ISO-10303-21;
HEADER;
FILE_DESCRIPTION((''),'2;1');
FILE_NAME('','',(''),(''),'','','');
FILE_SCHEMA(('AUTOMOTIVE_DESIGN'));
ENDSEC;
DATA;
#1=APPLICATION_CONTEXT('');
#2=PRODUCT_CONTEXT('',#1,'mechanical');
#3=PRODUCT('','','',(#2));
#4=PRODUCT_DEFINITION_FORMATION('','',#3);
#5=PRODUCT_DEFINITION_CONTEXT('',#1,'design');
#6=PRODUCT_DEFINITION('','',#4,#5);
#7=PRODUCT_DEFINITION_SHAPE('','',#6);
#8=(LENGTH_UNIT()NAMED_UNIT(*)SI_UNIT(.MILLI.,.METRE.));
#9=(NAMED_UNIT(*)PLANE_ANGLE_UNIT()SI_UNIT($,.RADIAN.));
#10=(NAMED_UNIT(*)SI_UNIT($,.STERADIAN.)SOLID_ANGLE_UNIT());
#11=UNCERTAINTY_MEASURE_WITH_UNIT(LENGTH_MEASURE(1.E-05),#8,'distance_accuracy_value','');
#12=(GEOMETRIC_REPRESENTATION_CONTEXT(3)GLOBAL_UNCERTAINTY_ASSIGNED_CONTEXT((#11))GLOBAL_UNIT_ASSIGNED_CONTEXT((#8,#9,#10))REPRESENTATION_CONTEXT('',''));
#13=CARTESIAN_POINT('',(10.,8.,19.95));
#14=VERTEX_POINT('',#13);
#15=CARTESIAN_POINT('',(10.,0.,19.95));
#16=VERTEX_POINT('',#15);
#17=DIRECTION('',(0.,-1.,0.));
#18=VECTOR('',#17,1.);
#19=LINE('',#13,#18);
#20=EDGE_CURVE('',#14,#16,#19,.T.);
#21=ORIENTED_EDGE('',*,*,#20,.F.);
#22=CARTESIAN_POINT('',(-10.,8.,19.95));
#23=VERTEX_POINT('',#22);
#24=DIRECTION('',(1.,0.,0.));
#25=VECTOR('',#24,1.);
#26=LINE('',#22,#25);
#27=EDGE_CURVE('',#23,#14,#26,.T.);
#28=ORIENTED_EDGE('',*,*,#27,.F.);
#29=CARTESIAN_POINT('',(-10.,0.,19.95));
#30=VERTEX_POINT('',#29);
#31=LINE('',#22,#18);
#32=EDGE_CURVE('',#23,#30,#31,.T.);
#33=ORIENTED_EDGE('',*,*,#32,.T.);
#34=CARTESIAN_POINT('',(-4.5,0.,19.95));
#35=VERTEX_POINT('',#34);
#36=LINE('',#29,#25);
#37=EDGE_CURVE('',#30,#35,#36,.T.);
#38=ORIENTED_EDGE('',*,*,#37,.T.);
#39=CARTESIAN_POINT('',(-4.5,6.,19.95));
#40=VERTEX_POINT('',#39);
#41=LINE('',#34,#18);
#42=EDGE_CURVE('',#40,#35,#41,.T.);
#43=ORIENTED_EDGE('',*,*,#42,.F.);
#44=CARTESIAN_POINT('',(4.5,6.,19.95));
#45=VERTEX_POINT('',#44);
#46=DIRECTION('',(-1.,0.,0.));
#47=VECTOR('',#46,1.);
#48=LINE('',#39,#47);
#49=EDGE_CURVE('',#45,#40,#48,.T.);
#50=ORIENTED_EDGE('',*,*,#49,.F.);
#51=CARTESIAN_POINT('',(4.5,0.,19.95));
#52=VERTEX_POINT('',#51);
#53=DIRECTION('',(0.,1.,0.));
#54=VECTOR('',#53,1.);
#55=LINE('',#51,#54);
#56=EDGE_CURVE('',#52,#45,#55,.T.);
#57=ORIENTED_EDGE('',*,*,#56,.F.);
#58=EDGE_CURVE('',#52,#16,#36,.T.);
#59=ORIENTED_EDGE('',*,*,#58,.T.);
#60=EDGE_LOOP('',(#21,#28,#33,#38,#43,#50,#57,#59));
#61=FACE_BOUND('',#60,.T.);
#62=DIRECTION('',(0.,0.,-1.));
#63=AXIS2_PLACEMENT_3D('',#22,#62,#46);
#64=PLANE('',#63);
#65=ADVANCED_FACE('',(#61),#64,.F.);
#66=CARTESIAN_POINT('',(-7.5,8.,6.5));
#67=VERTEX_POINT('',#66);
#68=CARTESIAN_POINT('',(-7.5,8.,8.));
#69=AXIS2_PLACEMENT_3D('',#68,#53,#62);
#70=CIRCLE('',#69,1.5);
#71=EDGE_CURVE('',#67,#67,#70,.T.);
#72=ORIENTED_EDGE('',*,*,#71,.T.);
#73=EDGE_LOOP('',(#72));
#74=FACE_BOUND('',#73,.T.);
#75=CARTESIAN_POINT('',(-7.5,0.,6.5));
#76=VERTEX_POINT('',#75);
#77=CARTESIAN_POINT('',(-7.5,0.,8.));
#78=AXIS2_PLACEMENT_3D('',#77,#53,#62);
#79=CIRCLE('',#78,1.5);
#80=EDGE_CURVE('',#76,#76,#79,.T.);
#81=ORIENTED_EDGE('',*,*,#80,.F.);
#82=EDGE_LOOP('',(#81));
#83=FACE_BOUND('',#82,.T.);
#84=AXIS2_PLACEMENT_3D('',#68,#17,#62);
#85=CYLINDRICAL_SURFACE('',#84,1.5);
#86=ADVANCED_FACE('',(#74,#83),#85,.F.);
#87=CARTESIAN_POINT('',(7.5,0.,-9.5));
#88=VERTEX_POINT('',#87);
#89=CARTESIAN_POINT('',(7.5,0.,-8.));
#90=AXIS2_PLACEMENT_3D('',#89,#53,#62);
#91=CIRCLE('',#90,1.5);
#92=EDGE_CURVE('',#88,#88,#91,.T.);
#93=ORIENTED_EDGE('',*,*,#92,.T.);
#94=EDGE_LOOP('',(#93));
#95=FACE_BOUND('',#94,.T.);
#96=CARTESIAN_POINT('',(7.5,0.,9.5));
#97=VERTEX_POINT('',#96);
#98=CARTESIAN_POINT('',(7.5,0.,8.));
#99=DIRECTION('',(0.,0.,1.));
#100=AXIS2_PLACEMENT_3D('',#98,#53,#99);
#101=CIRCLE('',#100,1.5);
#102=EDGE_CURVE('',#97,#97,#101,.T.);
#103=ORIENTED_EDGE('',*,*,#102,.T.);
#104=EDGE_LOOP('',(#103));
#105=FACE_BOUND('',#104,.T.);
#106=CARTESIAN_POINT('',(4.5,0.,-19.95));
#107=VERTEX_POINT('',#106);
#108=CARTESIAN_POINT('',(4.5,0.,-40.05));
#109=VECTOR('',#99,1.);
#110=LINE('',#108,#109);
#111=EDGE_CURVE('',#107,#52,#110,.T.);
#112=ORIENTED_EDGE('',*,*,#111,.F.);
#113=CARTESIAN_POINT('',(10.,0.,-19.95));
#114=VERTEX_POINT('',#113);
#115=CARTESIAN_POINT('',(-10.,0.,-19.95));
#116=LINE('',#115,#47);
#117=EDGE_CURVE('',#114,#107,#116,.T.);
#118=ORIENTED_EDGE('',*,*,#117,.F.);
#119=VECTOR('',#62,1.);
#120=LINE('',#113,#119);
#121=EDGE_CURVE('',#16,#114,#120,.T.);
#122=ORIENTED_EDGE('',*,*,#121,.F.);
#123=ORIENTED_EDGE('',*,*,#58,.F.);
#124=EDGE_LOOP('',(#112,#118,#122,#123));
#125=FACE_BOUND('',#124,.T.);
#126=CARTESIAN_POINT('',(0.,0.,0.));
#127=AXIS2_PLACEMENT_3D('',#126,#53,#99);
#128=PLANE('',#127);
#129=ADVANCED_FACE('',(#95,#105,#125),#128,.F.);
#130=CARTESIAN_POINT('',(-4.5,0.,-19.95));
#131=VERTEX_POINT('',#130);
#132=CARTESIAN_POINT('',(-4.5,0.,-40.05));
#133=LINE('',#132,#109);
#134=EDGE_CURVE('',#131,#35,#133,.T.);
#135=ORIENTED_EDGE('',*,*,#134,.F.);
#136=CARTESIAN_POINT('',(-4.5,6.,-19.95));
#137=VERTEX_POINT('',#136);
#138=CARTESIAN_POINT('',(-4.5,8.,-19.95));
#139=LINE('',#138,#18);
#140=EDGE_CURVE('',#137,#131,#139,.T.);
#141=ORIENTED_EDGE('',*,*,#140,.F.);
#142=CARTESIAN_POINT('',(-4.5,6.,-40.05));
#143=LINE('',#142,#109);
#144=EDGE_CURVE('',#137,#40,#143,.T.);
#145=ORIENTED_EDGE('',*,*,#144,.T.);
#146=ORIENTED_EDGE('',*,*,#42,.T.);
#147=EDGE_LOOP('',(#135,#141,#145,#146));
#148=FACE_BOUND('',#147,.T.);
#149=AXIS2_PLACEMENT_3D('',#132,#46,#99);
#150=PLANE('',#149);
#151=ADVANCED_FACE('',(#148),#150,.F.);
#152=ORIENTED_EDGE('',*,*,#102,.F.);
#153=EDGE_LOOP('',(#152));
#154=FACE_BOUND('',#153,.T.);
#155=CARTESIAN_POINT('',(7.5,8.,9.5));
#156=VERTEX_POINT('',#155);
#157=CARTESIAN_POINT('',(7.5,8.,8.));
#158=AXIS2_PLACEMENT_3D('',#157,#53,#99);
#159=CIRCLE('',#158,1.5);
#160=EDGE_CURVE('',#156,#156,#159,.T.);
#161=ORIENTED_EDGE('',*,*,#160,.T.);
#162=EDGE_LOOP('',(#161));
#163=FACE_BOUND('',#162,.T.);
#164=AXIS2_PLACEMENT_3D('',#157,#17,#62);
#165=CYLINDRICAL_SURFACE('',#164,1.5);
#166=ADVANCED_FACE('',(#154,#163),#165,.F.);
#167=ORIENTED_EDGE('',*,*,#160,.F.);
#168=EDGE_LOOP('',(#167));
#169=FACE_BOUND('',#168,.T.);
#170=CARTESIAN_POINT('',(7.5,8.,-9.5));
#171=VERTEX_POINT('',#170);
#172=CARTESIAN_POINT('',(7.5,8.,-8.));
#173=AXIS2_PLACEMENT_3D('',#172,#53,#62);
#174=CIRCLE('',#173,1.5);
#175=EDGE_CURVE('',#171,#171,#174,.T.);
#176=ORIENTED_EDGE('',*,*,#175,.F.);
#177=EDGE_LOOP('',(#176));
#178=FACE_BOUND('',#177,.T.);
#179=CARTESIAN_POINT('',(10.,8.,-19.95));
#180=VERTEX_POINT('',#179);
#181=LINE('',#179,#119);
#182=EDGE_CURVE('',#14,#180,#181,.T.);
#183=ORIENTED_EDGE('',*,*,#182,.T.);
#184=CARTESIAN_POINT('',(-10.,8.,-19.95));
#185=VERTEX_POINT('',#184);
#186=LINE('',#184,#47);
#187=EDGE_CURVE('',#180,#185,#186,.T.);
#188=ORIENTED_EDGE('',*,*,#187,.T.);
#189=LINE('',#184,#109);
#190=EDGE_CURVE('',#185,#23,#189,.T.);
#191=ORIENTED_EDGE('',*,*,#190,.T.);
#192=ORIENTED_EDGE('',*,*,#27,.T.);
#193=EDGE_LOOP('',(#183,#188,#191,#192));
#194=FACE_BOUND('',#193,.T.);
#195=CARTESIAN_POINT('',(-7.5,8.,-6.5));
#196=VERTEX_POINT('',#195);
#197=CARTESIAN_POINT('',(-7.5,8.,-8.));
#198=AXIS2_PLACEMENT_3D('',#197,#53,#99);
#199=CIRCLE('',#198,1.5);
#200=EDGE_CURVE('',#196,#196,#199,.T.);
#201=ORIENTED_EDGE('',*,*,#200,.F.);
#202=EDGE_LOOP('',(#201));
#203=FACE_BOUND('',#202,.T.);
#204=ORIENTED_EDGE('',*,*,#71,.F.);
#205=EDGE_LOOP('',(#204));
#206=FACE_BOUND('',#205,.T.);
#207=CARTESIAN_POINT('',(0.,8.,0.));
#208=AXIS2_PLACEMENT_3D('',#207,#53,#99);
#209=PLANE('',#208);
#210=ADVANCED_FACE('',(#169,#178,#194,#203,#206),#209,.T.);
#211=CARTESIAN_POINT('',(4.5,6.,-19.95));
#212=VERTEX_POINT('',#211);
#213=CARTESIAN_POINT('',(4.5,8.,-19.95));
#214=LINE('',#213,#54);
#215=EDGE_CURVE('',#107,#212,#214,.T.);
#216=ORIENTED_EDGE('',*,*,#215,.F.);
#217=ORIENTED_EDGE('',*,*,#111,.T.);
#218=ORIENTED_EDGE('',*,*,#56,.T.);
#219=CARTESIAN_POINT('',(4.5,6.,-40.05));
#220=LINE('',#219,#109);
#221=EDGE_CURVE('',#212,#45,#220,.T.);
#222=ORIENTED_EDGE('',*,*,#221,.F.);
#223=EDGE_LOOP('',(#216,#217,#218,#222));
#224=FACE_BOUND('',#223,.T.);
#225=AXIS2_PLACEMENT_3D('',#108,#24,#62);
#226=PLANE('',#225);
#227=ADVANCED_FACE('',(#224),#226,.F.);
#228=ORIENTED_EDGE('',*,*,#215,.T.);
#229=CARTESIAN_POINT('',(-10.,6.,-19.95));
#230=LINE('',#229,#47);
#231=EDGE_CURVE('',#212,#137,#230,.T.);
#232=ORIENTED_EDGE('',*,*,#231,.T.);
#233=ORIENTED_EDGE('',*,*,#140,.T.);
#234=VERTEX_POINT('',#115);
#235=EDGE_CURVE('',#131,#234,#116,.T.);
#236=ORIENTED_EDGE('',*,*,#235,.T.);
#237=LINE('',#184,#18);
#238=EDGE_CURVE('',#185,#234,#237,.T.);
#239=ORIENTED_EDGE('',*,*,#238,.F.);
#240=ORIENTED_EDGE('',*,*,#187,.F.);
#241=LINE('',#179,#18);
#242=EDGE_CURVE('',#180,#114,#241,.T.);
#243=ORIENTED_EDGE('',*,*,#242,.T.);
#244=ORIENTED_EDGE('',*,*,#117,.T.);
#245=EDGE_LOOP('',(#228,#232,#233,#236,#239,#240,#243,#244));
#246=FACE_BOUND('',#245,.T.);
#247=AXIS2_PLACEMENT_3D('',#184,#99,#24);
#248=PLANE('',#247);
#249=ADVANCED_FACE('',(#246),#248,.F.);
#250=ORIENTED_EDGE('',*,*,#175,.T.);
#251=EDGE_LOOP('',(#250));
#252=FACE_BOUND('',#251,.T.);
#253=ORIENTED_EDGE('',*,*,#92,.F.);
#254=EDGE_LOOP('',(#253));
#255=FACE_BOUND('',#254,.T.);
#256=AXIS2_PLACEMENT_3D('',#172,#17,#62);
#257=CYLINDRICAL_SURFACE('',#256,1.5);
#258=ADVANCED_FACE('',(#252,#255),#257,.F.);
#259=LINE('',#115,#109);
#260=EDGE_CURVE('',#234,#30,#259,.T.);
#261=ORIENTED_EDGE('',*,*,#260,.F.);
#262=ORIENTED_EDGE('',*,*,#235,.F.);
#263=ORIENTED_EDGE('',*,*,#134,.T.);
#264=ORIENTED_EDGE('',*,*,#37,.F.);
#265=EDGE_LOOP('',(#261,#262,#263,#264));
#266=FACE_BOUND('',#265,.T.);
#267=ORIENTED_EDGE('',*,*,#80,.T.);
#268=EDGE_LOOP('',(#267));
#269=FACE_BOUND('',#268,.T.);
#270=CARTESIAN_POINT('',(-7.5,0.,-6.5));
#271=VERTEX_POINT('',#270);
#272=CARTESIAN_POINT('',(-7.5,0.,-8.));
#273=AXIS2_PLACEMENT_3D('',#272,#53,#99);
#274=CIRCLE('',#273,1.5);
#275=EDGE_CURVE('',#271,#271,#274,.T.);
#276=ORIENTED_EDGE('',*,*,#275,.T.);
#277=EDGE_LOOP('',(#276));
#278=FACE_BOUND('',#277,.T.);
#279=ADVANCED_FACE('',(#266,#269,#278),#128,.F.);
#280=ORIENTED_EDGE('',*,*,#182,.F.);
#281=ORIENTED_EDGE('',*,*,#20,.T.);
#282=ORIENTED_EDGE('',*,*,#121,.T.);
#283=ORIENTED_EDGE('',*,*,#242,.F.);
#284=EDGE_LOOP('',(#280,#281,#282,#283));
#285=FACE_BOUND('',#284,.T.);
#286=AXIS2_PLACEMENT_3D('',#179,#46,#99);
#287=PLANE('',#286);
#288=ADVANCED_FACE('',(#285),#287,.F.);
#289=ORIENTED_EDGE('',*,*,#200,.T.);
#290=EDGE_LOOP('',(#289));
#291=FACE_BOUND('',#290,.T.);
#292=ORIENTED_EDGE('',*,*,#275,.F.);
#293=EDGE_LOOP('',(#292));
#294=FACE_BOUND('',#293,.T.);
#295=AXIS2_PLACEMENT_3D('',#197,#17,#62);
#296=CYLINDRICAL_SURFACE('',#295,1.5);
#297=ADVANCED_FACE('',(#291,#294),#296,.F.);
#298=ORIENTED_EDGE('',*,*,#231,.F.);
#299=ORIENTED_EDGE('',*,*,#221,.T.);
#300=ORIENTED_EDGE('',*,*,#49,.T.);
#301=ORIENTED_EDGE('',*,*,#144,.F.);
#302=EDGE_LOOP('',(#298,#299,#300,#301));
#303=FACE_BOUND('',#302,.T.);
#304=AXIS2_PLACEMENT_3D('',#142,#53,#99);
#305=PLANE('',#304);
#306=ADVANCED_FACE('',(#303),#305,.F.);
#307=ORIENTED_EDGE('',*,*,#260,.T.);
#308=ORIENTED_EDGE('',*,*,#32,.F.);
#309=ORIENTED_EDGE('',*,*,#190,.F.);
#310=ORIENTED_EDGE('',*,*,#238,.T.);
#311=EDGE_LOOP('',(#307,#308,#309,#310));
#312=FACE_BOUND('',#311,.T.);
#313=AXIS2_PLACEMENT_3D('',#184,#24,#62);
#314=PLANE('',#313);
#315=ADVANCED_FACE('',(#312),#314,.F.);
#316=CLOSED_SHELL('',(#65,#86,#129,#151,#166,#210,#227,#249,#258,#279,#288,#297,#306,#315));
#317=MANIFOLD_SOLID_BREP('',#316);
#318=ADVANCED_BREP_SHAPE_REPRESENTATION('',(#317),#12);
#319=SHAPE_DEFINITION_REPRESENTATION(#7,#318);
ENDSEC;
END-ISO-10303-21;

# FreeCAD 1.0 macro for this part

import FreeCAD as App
import Part
import Sketcher


def add_polygon(sketch, points):
    """Adds a closed chain of lines whose ends are joined by coincident constraints."""
    first, n = sketch.GeometryCount, len(points)
    for a, b in zip(points, points[1:] + points[:1]):
        sketch.addGeometry(Part.LineSegment(App.Vector(*a, 0), App.Vector(*b, 0)), False)
    for i in range(n):
        sketch.addConstraint(Sketcher.Constraint("Coincident", first + i, 2, first + (i + 1) % n, 1))

doc = App.newDocument("Part")
body = doc.addObject("PartDesign::Body", "Body")

# Sketch on XZ plane
sketch1 = body.newObject("Sketcher::SketchObject", "Sketch")
sketch1.AttachmentSupport = (doc.getObject("XZ_Plane"), [""])
sketch1.MapMode = "FlatFace"
add_polygon(sketch1, [(-10, -19.9), (-10, 19.9), (10, 19.9), (10, -19.9)])  # lines 0-3
sketch1.addGeometry(Part.Circle(App.Vector(-7.5, 8, 0), App.Vector(0, 0, 1), 1.5), False)  # 4
sketch1.addGeometry(Part.Circle(App.Vector(7.5, 8, 0), App.Vector(0, 0, 1), 1.5), False)  # 5
sketch1.addGeometry(Part.Circle(App.Vector(-7.5, -8, 0), App.Vector(0, 0, 1), 1.5), False)  # 6
sketch1.addGeometry(Part.Circle(App.Vector(7.5, -8, 0), App.Vector(0, 0, 1), 1.5), False)  # 7
sketch1.addConstraint([
    Sketcher.Constraint("Vertical", 0),
    Sketcher.Constraint("Horizontal", 1),
    Sketcher.Constraint("Vertical", 2),
    Sketcher.Constraint("Horizontal", 3),
    Sketcher.Constraint("Equal", 4, 5),
    Sketcher.Constraint("Equal", 5, 6),
    Sketcher.Constraint("Equal", 6, 7),
    Sketcher.Constraint("Symmetric", 5, 3, 6, 3, -1, 1),
    Sketcher.Constraint("Symmetric", 4, 3, 7, 3, -1, 1),
    Sketcher.Constraint("Symmetric", 0, 2, 2, 2, -1, 1),
    Sketcher.Constraint("Symmetric", 4, 3, 5, 3, -2),
    Sketcher.Constraint("Diameter", 4, 3.0),
    Sketcher.Constraint("DistanceX", 1, 1, 1, 2, 20.0),
    Sketcher.Constraint("DistanceY", 0, 1, 0, 2, 39.9),
    Sketcher.Constraint("DistanceY", -1, 1, 4, 3, 8.0),
    Sketcher.Constraint("DistanceX", 4, 3, 5, 3, 15.0),
])
pad1 = body.newObject("PartDesign::Pad", "Pad")
pad1.Profile = sketch1
pad1.Length = 8
pad1.Reversed = True

# Sketch on XY plane
sketch2 = body.newObject("Sketcher::SketchObject", "Sketch001")
sketch2.AttachmentSupport = (doc.getObject("XY_Plane"), [""])
sketch2.MapMode = "FlatFace"
sketch2.AttachmentOffset = App.Placement(App.Vector(0, 0, 19.95), App.Rotation())
add_polygon(sketch2, [(-4, 6), (-4, 0), (4, 0), (4, 6)])  # lines 0-3
sketch2.addConstraint([
    Sketcher.Constraint("Vertical", 0),
    Sketcher.Constraint("Horizontal", 1),
    Sketcher.Constraint("Vertical", 2),
    Sketcher.Constraint("Horizontal", 3),
    Sketcher.Constraint("Symmetric", 0, 2, 1, 2, -1, 1),
    Sketcher.Constraint("DistanceX", 1, 1, 1, 2, 9.0),
    Sketcher.Constraint("DistanceY", 0, 2, 0, 1, 6.0),
])
pocket1 = body.newObject("PartDesign::Pocket", "Pocket")
pocket1.Profile = sketch2
pocket1.Length = 60

doc.recompute()
